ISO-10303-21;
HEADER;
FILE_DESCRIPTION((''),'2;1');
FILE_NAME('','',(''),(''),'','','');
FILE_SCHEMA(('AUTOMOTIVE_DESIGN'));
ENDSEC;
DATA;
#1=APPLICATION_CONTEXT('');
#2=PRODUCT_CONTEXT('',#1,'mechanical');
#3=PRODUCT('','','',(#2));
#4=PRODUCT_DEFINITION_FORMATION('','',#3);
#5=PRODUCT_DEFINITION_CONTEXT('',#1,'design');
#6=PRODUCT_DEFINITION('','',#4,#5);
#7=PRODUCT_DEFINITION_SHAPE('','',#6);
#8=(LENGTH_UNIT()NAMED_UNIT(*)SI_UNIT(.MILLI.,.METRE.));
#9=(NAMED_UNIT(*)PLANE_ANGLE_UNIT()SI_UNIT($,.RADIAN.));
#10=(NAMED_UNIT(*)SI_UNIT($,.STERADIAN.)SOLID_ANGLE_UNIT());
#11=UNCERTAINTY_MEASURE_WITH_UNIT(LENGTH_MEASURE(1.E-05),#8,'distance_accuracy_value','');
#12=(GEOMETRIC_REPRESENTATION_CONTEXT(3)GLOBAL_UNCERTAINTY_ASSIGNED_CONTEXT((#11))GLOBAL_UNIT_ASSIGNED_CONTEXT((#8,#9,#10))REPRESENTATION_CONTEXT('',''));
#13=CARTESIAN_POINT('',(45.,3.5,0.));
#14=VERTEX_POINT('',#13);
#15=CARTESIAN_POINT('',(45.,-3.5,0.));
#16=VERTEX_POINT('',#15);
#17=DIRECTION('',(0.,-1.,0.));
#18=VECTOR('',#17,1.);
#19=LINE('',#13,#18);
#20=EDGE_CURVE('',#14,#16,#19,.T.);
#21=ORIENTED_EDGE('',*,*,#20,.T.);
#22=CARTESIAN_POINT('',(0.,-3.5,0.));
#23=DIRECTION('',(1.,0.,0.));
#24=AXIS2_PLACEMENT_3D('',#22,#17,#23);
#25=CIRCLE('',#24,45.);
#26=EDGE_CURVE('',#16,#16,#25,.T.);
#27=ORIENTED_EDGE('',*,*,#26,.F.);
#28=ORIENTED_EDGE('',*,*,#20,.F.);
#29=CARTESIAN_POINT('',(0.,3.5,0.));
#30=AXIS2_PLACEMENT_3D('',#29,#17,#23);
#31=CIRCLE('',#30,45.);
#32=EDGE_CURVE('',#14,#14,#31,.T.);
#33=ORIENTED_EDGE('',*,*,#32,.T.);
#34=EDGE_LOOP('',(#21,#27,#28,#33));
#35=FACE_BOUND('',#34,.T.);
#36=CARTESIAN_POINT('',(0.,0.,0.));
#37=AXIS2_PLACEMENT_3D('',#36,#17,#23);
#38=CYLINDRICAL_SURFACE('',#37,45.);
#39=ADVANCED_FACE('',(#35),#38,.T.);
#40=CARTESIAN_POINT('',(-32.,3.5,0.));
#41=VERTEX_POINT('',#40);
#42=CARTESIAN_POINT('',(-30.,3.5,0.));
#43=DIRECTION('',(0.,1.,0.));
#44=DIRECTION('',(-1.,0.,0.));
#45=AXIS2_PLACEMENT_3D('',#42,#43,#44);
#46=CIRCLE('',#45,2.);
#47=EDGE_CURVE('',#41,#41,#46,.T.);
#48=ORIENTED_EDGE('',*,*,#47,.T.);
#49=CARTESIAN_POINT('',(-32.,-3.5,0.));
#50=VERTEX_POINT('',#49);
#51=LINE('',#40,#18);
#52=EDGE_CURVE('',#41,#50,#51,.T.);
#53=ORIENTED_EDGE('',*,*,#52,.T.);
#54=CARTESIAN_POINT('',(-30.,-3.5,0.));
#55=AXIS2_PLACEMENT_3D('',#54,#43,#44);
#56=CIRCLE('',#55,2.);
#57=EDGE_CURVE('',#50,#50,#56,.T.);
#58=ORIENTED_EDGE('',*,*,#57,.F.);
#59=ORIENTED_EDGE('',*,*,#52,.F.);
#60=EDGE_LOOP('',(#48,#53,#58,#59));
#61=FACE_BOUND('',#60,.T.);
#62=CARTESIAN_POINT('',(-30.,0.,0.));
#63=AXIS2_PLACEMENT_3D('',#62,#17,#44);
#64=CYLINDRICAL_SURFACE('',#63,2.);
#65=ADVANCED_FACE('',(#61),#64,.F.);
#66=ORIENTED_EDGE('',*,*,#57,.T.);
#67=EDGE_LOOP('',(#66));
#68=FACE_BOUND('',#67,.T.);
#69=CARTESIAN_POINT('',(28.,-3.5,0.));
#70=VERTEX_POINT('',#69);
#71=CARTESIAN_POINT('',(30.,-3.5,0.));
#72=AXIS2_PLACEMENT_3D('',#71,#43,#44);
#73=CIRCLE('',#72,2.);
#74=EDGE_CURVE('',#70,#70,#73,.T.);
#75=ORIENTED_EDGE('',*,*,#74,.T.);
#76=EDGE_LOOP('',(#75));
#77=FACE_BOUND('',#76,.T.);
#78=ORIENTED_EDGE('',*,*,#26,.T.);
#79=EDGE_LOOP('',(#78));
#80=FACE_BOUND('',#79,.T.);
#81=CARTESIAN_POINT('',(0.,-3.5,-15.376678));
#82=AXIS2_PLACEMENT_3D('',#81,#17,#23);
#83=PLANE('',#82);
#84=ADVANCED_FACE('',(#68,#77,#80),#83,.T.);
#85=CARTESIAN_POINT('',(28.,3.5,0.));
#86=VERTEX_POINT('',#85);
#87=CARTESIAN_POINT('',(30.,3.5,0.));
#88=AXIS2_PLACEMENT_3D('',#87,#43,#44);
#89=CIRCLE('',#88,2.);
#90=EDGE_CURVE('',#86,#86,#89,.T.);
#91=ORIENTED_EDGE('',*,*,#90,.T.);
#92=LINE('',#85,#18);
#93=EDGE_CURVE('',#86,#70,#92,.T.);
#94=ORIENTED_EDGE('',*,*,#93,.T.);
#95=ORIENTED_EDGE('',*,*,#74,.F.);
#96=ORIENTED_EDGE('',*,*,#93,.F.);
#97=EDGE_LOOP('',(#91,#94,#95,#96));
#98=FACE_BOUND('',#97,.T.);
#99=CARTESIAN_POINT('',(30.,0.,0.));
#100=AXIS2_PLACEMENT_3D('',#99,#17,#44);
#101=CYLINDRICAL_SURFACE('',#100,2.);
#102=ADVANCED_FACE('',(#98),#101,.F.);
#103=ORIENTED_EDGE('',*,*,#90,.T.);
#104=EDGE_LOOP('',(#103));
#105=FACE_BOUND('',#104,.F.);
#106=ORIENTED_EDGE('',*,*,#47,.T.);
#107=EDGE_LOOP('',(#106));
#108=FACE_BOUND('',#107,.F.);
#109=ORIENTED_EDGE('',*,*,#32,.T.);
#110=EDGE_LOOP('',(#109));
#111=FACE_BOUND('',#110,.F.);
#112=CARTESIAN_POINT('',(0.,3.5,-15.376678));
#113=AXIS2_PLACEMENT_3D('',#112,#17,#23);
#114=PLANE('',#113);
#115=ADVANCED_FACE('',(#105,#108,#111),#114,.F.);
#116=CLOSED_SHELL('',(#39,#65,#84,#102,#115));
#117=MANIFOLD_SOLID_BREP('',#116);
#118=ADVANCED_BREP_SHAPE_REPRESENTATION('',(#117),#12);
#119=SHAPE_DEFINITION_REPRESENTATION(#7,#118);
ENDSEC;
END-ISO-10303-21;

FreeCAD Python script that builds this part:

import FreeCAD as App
import Part
import Sketcher
from FreeCAD import Vector
Q = App.Units.Quantity

doc = App.newDocument("Part")
body = doc.addObject("PartDesign::Body", "Body")

# Sketch on XZ plane
sketch1 = body.newObject("Sketcher::SketchObject", "Sketch")
sketch1.AttachmentSupport = (doc.getObject("XZ_Plane"), [""])
sketch1.MapMode = "FlatFace"
sketch1.addGeometry(Part.Circle(Vector(0, 0, 0), Vector(0, 0, 1), 45), False)
sketch1.addGeometry(Part.Circle(Vector(30, 0, 0), Vector(0, 0, 1), 2), False)
sketch1.addGeometry(Part.Circle(Vector(-30, 0, 0), Vector(0, 0, 1), 2), False)
sketch1.addConstraint(Sketcher.Constraint("Coincident", 0, 3, -1, 1))
sketch1.addConstraint(Sketcher.Constraint("Equal", 1, 2))
sketch1.addConstraint(Sketcher.Constraint("Symmetric", 1, 3, 2, 3, -1, 1))
sketch1.addConstraint(Sketcher.Constraint("PointOnObject", 1, 3, -1))
sketch1.addConstraint(Sketcher.Constraint("Diameter", 0, Q("90 mm")))
sketch1.addConstraint(Sketcher.Constraint("Diameter", 1, Q("4 mm")))
sketch1.addConstraint(Sketcher.Constraint("DistanceX", -1, 1, 1, 3, Q("30 mm")))
pad1 = body.newObject("PartDesign::Pad", "Pad")
pad1.Profile = sketch1
pad1.Length = 7
pad1.Midplane = True

doc.recompute()
